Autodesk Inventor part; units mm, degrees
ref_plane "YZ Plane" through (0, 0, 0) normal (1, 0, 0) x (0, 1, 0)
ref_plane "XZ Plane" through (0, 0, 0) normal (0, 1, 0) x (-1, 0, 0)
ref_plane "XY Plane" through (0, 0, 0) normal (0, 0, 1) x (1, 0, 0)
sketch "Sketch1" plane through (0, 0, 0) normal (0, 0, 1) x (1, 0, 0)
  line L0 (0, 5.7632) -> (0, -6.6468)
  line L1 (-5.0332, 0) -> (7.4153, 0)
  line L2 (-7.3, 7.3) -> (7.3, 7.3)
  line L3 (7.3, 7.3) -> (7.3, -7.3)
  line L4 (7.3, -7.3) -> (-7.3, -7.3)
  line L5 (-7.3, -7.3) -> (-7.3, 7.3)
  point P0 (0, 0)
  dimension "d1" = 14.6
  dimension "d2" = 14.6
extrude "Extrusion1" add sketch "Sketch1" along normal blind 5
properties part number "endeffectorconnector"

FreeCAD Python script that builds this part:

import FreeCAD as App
import Part
import Sketcher
from FreeCAD import Vector

doc = App.newDocument("Part")
params = doc.addObject("Spreadsheet::Sheet", "Params")
for row, (alias, value) in enumerate([
    ("sketch1_width", "14.6 mm"),
    ("pad1_length", "5 mm"),
], start=1):
    params.set(f"A{row}", alias)
    params.set(f"B{row}", "=" + value)
    params.setAlias(f"B{row}", alias)

body = doc.addObject("PartDesign::Body", "Body")

sketch1 = body.newObject("Sketcher::SketchObject", "Sketch")
sketch1.AttachmentSupport = (doc.getObject("XY_Plane"), [""])
sketch1.MapMode = "FlatFace"
sketch1.addGeometry([
    Part.LineSegment(Vector(7, 7, 0), Vector(-7, 7, 0)),
    Part.LineSegment(Vector(-7, 7, 0), Vector(-7, -7, 0)),
    Part.LineSegment(Vector(-7, -7, 0), Vector(7, -7, 0)),
    Part.LineSegment(Vector(7, -7, 0), Vector(7, 7, 0)),
], False)
sketch1.addConstraint([
    Sketcher.Constraint("Coincident", 0, 2, 1, 1),
    Sketcher.Constraint("Coincident", 1, 2, 2, 1),
    Sketcher.Constraint("Coincident", 2, 2, 3, 1),
    Sketcher.Constraint("Coincident", 3, 2, 0, 1),
    Sketcher.Constraint("Horizontal", 0),
    Sketcher.Constraint("Vertical", 1),
    Sketcher.Constraint("Horizontal", 2),
    Sketcher.Constraint("Vertical", 3),
    Sketcher.Constraint("Symmetric", 0, 2, 2, 2, -1, 1),
    Sketcher.Constraint("Equal", 2, 1),
    Sketcher.Constraint("DistanceX", 0, 2, 0, 1, 14.6),
])
sketch1.setExpression("Constraints[10]", "Params.sketch1_width")
pad1 = body.newObject("PartDesign::Pad", "Pad")
pad1.Profile = sketch1
pad1.setExpression("Length", "Params.pad1_length")

doc.recompute()
